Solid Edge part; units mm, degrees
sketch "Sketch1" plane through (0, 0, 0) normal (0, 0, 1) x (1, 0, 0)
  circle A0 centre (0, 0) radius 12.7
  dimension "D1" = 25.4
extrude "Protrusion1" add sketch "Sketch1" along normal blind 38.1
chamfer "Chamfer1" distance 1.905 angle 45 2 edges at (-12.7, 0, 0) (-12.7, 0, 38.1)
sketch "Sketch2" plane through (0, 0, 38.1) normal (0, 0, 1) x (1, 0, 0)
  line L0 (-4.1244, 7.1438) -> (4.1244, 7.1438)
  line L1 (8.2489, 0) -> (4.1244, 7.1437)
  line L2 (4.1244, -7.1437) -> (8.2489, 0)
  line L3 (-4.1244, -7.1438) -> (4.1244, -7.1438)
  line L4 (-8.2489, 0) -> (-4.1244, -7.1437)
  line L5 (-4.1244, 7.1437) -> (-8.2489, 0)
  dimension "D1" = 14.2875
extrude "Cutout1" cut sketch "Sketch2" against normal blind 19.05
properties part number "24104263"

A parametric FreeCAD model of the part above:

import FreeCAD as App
import Part
import Sketcher
Q = App.Units.Quantity


def edges_at(feature, points):
    """Names of the edges that pass closest to the given points."""
    edges = feature.Shape.Edges
    near = lambda p: min(range(len(edges)), key=lambda i: edges[i].distToShape(Part.Vertex(*p))[0])
    return sorted({f"Edge{near(p) + 1}" for p in points})


def add_polygon(sketch, points):
    """Adds a closed chain of lines whose ends are joined by coincident constraints."""
    first, n = sketch.GeometryCount, len(points)
    for a, b in zip(points, points[1:] + points[:1]):
        sketch.addGeometry(Part.LineSegment(App.Vector(*a, 0), App.Vector(*b, 0)), False)
    for i in range(n):
        sketch.addConstraint(Sketcher.Constraint("Coincident", first + i, 2, first + (i + 1) % n, 1))

doc = App.newDocument("Part")
body = doc.addObject("PartDesign::Body", "Body")

# Sketch on XY plane
sketch1 = body.newObject("Sketcher::SketchObject", "Sketch")
sketch1.AttachmentSupport = (doc.getObject("XY_Plane"), [""])
sketch1.MapMode = "FlatFace"
sketch1.addGeometry(Part.Circle(App.Vector(0, 0, 0), App.Vector(0, 0, 1), 13), False)
sketch1.addConstraint([
    Sketcher.Constraint("Coincident", 0, 3, -1, 1),
    Sketcher.Constraint("Diameter", 0, Q("1 in")),
])
pad1 = body.newObject("PartDesign::Pad", "Pad")
pad1.Profile = sketch1
pad1.Length = Q("1.5 in")
doc.recompute()

chamfer = body.newObject("PartDesign::Chamfer", "Chamfer")
chamfer.Base = (pad1, edges_at(pad1, [(-12.7, 0, 0), (-12.7, 0, 38.1)]))
chamfer.Size = Q("0.075 in")

# Sketch on XY plane
sketch2 = body.newObject("Sketcher::SketchObject", "Sketch001")
sketch2.AttachmentSupport = (doc.getObject("XY_Plane"), [""])
sketch2.MapMode = "FlatFace"
sketch2.AttachmentOffset = App.Placement(App.Vector(0, 0, 1.5 * 25.4), App.Rotation())
add_polygon(sketch2, [(4, 7), (-4, 7), (-8, 0), (-4, -7), (4, -7), (8, 0)])  # lines 0-5
sketch2.addConstraint([
    Sketcher.Constraint("Horizontal", 0),
    Sketcher.Constraint("Horizontal", 3),
    Sketcher.Constraint("Symmetric", 0, 2, 3, 2, -1, 1),
    Sketcher.Constraint("Symmetric", 1, 2, 4, 2, -1, 1),
    Sketcher.Constraint("PointOnObject", 1, 2, -1),
    Sketcher.Constraint("Parallel", 2, 5),
    Sketcher.Constraint("Vertical", 0, 2, 2, 2),
    Sketcher.Constraint("Angle", 1, Q("-120.0002 deg")),
    Sketcher.Constraint("DistanceY", -1, 1, 0, 2, Q("0.281252 in")),
    Sketcher.Constraint("DistanceX", 0, 2, 0, 1, 8.2488),
])
pocket1 = body.newObject("PartDesign::Pocket", "Pocket")
pocket1.Profile = sketch2
pocket1.Length = Q("0.75 in")

doc.recompute()
